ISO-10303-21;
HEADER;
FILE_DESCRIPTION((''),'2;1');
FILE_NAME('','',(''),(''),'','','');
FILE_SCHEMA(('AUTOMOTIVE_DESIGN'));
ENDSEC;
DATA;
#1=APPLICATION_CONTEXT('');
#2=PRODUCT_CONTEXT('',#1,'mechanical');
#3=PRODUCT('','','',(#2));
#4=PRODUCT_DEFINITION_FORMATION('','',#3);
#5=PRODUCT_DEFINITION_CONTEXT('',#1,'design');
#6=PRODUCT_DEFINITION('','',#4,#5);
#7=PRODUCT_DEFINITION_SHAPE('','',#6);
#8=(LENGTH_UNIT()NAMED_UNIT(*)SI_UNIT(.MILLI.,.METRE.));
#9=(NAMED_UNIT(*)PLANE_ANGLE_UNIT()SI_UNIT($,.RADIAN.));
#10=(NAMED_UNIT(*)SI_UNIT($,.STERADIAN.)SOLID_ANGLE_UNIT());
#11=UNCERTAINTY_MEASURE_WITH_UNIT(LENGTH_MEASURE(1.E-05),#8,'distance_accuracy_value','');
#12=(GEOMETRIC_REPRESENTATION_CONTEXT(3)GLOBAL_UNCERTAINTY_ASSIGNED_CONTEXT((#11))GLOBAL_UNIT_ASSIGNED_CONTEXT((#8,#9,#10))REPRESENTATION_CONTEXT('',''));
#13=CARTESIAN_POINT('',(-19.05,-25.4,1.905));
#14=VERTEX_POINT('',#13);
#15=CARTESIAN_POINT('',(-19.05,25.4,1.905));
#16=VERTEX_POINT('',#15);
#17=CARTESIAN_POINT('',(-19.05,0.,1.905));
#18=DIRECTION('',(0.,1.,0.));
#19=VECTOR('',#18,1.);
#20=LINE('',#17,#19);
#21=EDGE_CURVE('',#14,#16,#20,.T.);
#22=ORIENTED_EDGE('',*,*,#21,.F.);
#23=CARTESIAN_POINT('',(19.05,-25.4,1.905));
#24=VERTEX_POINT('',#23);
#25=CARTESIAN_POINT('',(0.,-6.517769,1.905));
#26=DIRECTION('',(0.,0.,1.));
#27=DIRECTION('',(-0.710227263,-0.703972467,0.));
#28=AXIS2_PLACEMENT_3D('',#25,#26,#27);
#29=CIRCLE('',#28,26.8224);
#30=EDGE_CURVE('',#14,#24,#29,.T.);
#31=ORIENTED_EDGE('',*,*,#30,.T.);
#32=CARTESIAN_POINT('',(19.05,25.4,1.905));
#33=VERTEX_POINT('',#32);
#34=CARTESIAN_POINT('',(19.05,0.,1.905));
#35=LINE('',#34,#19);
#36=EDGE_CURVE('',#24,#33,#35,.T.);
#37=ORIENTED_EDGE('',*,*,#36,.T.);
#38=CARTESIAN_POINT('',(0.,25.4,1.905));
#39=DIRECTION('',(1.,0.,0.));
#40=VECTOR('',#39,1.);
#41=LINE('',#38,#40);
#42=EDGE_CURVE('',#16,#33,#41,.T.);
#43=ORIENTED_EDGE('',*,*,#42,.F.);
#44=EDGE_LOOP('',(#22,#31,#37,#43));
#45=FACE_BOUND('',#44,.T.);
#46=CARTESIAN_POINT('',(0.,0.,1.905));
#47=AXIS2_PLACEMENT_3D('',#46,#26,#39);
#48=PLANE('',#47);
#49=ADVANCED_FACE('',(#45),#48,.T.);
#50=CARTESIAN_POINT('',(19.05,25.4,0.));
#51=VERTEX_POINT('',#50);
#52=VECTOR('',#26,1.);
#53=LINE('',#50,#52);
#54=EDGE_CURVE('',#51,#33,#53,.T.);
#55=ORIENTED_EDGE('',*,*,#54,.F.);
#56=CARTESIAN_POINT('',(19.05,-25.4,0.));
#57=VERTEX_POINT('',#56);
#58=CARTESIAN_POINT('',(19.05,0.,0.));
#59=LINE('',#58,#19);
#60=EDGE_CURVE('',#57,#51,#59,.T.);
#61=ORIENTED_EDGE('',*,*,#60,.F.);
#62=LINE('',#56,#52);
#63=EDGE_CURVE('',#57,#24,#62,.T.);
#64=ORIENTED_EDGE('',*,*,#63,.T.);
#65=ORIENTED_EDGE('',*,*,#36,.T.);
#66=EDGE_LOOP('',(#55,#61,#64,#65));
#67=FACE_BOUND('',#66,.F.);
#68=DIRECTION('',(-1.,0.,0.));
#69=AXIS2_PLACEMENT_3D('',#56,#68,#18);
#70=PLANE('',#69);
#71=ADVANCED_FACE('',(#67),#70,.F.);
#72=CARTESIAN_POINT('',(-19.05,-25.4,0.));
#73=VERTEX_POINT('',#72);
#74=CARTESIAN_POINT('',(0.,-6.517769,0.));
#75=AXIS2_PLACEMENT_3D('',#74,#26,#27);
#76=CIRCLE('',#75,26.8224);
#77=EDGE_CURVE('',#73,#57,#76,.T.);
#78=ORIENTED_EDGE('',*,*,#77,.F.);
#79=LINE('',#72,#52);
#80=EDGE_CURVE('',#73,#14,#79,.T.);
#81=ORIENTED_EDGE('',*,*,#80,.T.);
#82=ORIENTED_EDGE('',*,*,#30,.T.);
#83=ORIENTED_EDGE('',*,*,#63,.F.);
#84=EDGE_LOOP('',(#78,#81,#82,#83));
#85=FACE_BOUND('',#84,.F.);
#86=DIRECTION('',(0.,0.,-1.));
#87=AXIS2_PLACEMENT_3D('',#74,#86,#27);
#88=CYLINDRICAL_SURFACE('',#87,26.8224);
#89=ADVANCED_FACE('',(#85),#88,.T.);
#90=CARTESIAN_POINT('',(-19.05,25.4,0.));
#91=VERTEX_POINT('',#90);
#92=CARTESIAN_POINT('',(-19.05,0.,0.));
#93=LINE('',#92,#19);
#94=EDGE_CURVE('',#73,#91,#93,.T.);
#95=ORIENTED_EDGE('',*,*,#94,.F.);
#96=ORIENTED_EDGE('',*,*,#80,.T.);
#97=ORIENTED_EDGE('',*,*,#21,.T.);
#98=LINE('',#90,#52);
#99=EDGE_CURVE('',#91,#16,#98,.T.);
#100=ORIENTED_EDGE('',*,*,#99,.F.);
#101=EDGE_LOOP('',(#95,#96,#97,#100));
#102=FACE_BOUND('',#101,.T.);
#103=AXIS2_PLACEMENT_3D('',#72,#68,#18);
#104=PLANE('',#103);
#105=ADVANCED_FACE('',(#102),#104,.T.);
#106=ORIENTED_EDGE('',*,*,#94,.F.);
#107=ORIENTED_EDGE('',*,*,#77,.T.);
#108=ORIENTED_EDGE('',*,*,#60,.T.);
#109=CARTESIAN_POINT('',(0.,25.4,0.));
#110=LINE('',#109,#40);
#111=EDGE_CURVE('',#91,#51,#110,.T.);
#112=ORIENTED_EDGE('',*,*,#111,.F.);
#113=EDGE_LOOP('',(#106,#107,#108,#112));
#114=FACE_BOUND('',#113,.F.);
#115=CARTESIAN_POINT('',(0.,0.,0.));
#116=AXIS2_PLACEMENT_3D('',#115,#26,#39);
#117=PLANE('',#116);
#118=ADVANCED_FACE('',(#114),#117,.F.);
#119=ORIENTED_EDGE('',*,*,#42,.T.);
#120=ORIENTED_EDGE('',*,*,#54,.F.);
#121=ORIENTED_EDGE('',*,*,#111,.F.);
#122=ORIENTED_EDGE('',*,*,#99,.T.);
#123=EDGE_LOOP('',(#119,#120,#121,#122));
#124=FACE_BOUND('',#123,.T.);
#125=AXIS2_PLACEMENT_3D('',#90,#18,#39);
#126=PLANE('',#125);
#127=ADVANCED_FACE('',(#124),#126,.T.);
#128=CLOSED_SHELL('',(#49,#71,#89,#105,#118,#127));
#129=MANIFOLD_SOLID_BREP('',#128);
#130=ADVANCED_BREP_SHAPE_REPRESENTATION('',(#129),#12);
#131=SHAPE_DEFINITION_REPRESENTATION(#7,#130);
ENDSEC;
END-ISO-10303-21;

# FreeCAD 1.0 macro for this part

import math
import FreeCAD as App
import Part
import Sketcher
from FreeCAD import Vector
Q = App.Units.Quantity

doc = App.newDocument("Part")
body = doc.addObject("PartDesign::Body", "Body")

# Sketch on XY plane
sketch1 = doc.addObject("Sketcher::SketchObject", "Sketch")
body.addObject(sketch1)
sketch1.AttachmentSupport = (doc.XY_Plane, [""])
sketch1.MapMode = "FlatFace"
sketch1.addGeometry([
    Part.LineSegment(Vector(-19.05, 25.4, 0), Vector(-19.05, -25.4, 0)),
    Part.ArcOfCircle(Part.Circle(Vector(0, -6.517769, 0), Vector(0, 0, 1), 26.8224), math.radians(-135.253409), math.radians(-44.746591)),
    Part.LineSegment(Vector(19.05, -25.4, 0), Vector(19.05, 25.4, 0)),
    Part.LineSegment(Vector(19.05, 25.4, 0), Vector(-19.05, 25.4, 0)),
], False)
sketch1.addConstraint([
    Sketcher.Constraint("Coincident", 0, 2, 1, 1),
    Sketcher.Constraint("Coincident", 1, 2, 2, 1),
    Sketcher.Constraint("Coincident", 2, 2, 3, 1),
    Sketcher.Constraint("Coincident", 3, 2, 0, 1),
    Sketcher.Constraint("Vertical", 0),
    Sketcher.Constraint("Vertical", 2),
    Sketcher.Constraint("Horizontal", 3),
    Sketcher.Constraint("Symmetric", 0, 2, 2, 2, -1, 1),
    Sketcher.Constraint("PointOnObject", 1, 3, -2),
    Sketcher.Constraint("DistanceY", 0, 2, 0, 1, Q("2 in")),
    Sketcher.Constraint("DistanceX", 3, 2, 3, 1, Q("1.5 in")),
    Sketcher.Constraint("Radius", 1, Q("1.056 in")),
])
pad1 = doc.addObject("PartDesign::Pad", "Pad")
body.addObject(pad1)
pad1.Profile = sketch1
pad1.Length = Q("0.075 in")

doc.recompute()
